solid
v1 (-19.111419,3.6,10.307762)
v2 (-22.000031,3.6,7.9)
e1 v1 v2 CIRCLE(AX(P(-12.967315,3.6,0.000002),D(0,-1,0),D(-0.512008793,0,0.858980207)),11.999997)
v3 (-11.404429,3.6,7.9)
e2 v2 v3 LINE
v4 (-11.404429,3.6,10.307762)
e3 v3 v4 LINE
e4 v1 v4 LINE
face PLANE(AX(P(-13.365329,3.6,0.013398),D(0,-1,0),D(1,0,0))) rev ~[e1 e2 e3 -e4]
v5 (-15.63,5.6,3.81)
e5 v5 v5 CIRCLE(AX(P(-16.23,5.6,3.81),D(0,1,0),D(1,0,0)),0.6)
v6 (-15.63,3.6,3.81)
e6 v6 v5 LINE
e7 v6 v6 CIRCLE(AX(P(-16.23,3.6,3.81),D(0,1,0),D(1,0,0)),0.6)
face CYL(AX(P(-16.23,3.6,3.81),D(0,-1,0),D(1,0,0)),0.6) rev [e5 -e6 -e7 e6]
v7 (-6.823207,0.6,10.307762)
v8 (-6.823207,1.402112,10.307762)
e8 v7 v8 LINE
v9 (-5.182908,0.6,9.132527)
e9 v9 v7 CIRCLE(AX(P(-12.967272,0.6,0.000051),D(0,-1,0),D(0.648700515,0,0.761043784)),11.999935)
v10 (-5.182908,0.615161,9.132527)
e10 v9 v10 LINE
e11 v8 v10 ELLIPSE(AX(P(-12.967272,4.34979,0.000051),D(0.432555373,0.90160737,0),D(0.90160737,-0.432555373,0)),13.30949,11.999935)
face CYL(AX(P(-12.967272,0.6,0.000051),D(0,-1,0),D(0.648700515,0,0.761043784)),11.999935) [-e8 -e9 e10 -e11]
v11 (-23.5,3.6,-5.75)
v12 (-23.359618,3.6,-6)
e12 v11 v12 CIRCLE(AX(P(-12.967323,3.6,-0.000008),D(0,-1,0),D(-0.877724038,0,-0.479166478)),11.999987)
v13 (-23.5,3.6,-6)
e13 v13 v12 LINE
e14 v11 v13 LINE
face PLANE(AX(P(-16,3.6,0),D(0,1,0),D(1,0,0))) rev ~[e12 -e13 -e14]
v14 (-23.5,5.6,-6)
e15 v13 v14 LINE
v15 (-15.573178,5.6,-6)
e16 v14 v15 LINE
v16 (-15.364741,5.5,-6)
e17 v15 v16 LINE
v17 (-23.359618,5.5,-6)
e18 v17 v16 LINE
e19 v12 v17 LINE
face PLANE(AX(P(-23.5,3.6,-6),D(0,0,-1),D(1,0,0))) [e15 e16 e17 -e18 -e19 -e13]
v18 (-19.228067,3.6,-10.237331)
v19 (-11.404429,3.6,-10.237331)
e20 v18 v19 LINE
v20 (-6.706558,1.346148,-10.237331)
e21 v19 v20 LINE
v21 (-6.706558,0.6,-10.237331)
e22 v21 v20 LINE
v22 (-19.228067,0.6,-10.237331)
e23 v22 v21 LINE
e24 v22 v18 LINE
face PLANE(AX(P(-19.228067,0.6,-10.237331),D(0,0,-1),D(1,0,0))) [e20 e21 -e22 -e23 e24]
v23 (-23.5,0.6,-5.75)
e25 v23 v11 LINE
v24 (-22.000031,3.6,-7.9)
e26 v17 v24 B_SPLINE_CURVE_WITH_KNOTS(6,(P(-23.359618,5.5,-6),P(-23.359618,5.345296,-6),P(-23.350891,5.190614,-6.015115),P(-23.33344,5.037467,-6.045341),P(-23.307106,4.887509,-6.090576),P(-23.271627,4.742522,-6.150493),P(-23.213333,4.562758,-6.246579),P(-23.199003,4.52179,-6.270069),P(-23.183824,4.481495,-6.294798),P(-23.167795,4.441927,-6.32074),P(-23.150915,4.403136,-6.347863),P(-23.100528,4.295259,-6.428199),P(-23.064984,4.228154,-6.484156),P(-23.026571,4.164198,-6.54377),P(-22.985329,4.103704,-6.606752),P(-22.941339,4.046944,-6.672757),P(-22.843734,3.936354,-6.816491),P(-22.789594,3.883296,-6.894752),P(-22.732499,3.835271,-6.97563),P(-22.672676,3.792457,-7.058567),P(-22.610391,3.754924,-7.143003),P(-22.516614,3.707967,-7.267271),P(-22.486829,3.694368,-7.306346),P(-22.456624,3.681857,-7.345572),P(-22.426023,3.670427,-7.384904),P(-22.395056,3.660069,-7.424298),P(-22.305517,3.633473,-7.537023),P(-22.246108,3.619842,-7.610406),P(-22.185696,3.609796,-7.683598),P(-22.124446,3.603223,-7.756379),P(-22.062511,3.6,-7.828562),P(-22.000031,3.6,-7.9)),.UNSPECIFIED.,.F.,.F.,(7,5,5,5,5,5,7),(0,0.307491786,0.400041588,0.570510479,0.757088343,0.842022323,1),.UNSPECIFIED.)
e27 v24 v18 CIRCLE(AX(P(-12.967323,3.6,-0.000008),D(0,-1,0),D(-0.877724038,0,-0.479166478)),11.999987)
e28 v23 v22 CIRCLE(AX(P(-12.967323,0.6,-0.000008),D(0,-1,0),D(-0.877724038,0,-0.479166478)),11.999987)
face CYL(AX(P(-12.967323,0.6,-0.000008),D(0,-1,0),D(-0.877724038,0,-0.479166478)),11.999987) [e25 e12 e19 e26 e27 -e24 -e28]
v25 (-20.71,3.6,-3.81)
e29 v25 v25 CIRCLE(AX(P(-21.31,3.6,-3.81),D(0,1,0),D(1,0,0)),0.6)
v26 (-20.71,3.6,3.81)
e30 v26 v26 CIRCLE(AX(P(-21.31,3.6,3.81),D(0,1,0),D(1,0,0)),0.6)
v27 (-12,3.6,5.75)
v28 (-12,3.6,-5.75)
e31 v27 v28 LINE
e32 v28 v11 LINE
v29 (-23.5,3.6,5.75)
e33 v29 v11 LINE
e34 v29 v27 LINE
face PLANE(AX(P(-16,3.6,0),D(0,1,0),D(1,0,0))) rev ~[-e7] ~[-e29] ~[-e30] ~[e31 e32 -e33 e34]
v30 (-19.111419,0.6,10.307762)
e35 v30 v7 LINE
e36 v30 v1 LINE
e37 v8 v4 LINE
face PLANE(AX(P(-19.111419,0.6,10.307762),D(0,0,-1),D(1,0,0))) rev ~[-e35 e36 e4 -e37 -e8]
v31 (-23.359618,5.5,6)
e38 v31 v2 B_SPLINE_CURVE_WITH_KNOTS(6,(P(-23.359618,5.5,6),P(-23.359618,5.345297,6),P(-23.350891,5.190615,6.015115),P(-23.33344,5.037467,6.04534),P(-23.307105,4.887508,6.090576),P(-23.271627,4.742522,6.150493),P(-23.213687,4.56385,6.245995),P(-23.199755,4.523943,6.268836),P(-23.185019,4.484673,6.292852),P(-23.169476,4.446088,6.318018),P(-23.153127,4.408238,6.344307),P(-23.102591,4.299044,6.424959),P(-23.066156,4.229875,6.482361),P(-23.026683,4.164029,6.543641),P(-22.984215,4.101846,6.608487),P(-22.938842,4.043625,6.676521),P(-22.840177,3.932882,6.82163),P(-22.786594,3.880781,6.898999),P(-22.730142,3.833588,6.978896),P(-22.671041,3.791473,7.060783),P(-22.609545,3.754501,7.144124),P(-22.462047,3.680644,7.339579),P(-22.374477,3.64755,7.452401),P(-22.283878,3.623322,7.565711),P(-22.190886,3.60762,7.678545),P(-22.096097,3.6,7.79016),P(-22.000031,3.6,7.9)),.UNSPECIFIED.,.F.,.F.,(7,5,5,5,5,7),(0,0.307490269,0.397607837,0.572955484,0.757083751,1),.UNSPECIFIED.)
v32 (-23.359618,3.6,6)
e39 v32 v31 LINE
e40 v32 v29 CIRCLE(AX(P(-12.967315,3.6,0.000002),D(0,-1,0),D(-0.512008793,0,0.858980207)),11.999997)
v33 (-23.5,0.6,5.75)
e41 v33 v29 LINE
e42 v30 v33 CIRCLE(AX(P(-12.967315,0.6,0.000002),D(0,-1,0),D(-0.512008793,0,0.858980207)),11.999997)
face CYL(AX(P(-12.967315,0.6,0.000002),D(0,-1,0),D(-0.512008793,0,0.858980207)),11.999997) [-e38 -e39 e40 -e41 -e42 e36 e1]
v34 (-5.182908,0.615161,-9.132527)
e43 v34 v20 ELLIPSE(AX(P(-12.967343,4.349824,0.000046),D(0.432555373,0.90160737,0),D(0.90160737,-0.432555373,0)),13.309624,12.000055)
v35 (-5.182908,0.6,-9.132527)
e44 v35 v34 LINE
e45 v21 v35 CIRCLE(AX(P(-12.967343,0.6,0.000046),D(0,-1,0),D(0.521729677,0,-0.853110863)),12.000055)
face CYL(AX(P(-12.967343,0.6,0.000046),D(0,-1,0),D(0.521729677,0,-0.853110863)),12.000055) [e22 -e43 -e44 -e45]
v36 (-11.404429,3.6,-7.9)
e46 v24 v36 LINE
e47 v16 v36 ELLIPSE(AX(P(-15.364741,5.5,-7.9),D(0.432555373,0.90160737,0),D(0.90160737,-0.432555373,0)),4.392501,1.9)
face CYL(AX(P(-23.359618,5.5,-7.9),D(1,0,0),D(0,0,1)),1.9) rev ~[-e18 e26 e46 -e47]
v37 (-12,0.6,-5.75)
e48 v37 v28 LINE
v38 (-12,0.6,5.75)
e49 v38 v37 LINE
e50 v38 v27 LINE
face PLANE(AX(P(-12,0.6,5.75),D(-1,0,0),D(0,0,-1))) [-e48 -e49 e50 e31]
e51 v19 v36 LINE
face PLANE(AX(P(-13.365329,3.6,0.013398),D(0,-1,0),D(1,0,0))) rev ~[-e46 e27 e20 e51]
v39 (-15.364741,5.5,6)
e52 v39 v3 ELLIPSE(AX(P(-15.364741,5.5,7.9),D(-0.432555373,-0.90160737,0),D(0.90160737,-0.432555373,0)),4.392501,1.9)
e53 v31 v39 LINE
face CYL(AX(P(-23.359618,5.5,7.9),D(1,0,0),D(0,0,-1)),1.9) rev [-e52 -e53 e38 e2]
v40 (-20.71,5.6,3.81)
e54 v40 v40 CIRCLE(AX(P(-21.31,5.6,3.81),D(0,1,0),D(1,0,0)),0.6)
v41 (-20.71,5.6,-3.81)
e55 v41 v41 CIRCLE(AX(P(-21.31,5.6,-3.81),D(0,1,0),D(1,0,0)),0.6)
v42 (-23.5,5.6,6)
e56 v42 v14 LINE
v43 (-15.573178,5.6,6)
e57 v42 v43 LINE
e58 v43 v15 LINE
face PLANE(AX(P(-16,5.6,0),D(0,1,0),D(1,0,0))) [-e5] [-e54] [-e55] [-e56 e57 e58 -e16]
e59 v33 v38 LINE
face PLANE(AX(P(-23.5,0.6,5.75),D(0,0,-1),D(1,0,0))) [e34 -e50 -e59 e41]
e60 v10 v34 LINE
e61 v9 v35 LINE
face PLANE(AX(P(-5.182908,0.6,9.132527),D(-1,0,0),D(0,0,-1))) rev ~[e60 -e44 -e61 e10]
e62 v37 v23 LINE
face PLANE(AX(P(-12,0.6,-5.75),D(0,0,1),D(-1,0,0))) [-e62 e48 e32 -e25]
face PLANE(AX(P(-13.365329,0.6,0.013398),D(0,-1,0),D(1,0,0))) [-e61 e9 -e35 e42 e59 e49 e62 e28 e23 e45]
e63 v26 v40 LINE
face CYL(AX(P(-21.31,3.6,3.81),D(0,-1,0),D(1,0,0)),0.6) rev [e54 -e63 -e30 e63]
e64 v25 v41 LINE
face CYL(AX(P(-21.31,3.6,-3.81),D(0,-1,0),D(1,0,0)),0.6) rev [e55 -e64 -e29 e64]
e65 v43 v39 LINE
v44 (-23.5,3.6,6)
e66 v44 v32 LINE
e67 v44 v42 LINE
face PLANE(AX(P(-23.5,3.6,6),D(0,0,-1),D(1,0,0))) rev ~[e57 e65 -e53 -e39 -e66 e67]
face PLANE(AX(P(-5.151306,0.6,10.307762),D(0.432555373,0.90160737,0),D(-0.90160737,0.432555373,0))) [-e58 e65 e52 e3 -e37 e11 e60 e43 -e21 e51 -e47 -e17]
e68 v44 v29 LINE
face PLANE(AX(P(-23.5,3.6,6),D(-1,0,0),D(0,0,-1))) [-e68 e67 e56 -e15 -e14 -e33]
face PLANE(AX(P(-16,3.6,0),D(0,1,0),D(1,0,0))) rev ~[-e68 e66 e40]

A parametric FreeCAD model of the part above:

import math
import FreeCAD as App
import Part
import Sketcher


def edges_at(feature, points):
    """Names of the edges that pass closest to the given points."""
    edges = feature.Shape.Edges
    near = lambda p: min(range(len(edges)), key=lambda i: edges[i].distToShape(Part.Vertex(*p))[0])
    return sorted({f"Edge{near(p) + 1}" for p in points})


def add_polygon(sketch, points):
    """Adds a closed chain of lines whose ends are joined by coincident constraints."""
    first, n = sketch.GeometryCount, len(points)
    for a, b in zip(points, points[1:] + points[:1]):
        sketch.addGeometry(Part.LineSegment(App.Vector(*a, 0), App.Vector(*b, 0)), False)
    for i in range(n):
        sketch.addConstraint(Sketcher.Constraint("Coincident", first + i, 2, first + (i + 1) % n, 1))

doc = App.newDocument("Part")
params = doc.addObject("Spreadsheet::Sheet", "Params")
for row, (alias, value) in enumerate([
    ("sketch1_width", "11.5 mm"),
    ("pad1_length", "3 mm"),
    ("sketch2_diameter", "1.2 mm"),
    ("sketch2_width", "15 mm"),
    ("sketch2_height", "12 mm"),
    ("pad2_length", "2 mm"),
    ("fillet_radius", "1.9 mm"),
], start=1):
    params.set(f"A{row}", alias)
    params.set(f"B{row}", "=" + value)
    params.setAlias(f"B{row}", alias)

body = doc.addObject("PartDesign::Body", "Body")

sketch1 = doc.addObject("Sketcher::SketchObject", "Sketch")
body.addObject(sketch1)
sketch1.AttachmentSupport = (doc.XZ_Plane, [""])
sketch1.MapMode = "FlatFace"
sketch1.addGeometry([
    Part.LineSegment(App.Vector(-23.5, 5.75, 0), App.Vector(-12, 5.75, 0)),
    Part.LineSegment(App.Vector(-12, 5.75, 0), App.Vector(-12, -5.75, 0)),
    Part.LineSegment(App.Vector(-12, -5.75, 0), App.Vector(-23.5, -5.75, 0)),
    Part.ArcOfCircle(Part.Circle(App.Vector(-12.967323, -0.000008, 0), App.Vector(0, 0, 1), 11.999987), math.radians(-151.369022), math.radians(-121.448317)),
    Part.LineSegment(App.Vector(-19.228067, -10.237331, 0), App.Vector(-6.706558, -10.237331, 0)),
    Part.ArcOfCircle(Part.Circle(App.Vector(-12.967343, 0.000046, 0), App.Vector(0, 0, 1), 12.000055), math.radians(-58.551654), math.radians(-49.556347)),
    Part.LineSegment(App.Vector(-5.182908, -9.132527, 0), App.Vector(-5.182908, 9.132527, 0)),
    Part.ArcOfCircle(Part.Circle(App.Vector(-12.967272, 0.000051, 0), App.Vector(0, 0, 1), 11.999935), math.radians(49.556302), math.radians(59.202313)),
    Part.LineSegment(App.Vector(-6.823207, 10.307762, 0), App.Vector(-19.111419, 10.307762, 0)),
    Part.ArcOfCircle(Part.Circle(App.Vector(-12.967315, 0.000002, 0), App.Vector(0, 0, 1), 11.999997), math.radians(120.797727), math.radians(151.369013)),
], False)
sketch1.addConstraint([
    Sketcher.Constraint("Coincident", 0, 2, 1, 1),
    Sketcher.Constraint("Coincident", 1, 2, 2, 1),
    Sketcher.Constraint("Coincident", 2, 2, 3, 1),
    Sketcher.Constraint("Coincident", 3, 2, 4, 1),
    Sketcher.Constraint("Coincident", 4, 2, 5, 1),
    Sketcher.Constraint("Coincident", 5, 2, 6, 1),
    Sketcher.Constraint("Coincident", 6, 2, 7, 1),
    Sketcher.Constraint("Coincident", 7, 2, 8, 1),
    Sketcher.Constraint("Coincident", 8, 2, 9, 1),
    Sketcher.Constraint("Coincident", 9, 2, 0, 1),
    Sketcher.Constraint("Horizontal", 0),
    Sketcher.Constraint("Vertical", 1),
    Sketcher.Constraint("Horizontal", 2),
    Sketcher.Constraint("Horizontal", 4),
    Sketcher.Constraint("Vertical", 6),
    Sketcher.Constraint("Horizontal", 8),
    Sketcher.Constraint("Symmetric", 2, 2, 9, 2, -1),
    Sketcher.Constraint("PointOnObject", 9, 3, -1),
    Sketcher.Constraint("Equal", 2, 1),
    Sketcher.Constraint("DistanceX", 0, 1, 0, 2, 11.5),
    Sketcher.Constraint("DistanceX", 0, 2, -1, 1, 12.0),
    Sketcher.Constraint("Radius", 3, 11.999987),
    Sketcher.Constraint("Radius", 5, 12.000055),
    Sketcher.Constraint("Radius", 7, 11.999935),
    Sketcher.Constraint("Radius", 9, 11.999997),
    Sketcher.Constraint("DistanceX", 4, 1, 4, 2, 12.521509),
    Sketcher.Constraint("DistanceX", 7, 2, 6, 2, 1.640299),
    Sketcher.Constraint("DistanceX", 8, 2, 8, 1, 12.288212),
    Sketcher.Constraint("DistanceY", 6, 1, 6, 2, 18.265054),
    Sketcher.Constraint("DistanceX", 7, 3, -1, 1, 12.967272),
    Sketcher.Constraint("DistanceY", 3, 2, -1, 1, 10.237331),
    Sketcher.Constraint("DistanceX", 4, 2, -1, 1, 6.706558),
    Sketcher.Constraint("DistanceX", 6, 2, -1, 1, 5.182908),
])
sketch1.setExpression("Constraints[19]", "Params.sketch1_width")
pad1 = doc.addObject("PartDesign::Pad", "Pad")
body.addObject(pad1)
pad1.Profile = sketch1
pad1.setExpression("Length", "Params.pad1_length")
pad1.Reversed = True

sketch2 = doc.addObject("Sketcher::SketchObject", "Sketch001")
body.addObject(sketch2)
sketch2.AttachmentSupport = (doc.XZ_Plane, [""])
sketch2.MapMode = "FlatFace"
sketch2.AttachmentOffset = App.Placement(App.Vector(0, 0, -3), App.Rotation())
add_polygon(sketch2, [(-23.5, -6), (-23.5, 6), (-8.5, 6), (-8.5, -6)])
sketch2.addGeometry(Part.Circle(App.Vector(-21.31, 3.81, 0), App.Vector(0, 0, 1), 0.6), False)
sketch2.addGeometry(Part.Circle(App.Vector(-16.23, 3.81, 0), App.Vector(0, 0, 1), 0.6), False)
sketch2.addGeometry(Part.Circle(App.Vector(-21.31, -3.81, 0), App.Vector(0, 0, 1), 0.6), False)
sketch2.addConstraint([
    Sketcher.Constraint("Vertical", 0),
    Sketcher.Constraint("Horizontal", 1),
    Sketcher.Constraint("Vertical", 2),
    Sketcher.Constraint("Horizontal", 3),
    Sketcher.Constraint("Equal", 4, 5),
    Sketcher.Constraint("Equal", 5, 6),
    Sketcher.Constraint("Symmetric", 4, 3, 6, 3, -1),
    Sketcher.Constraint("Horizontal", 4, 3, 5, 3),
    Sketcher.Constraint("Diameter", 4, 1.2),
    Sketcher.Constraint("DistanceX", 1, 1, 1, 2, 15.0),
    Sketcher.Constraint("DistanceY", 0, 1, 0, 2, 12.0),
    Sketcher.Constraint("DistanceY", -1, 1, 0, 2, 6.0),
    Sketcher.Constraint("DistanceX", 0, 2, -1, 1, 23.5),
    Sketcher.Constraint("DistanceX", 4, 3, -1, 1, 21.31),
    Sketcher.Constraint("DistanceY", -1, 1, 4, 3, 3.81),
    Sketcher.Constraint("DistanceX", 5, 3, -1, 1, 16.23),
])
sketch2.setExpression("Constraints[12]", "Params.sketch2_diameter")
sketch2.setExpression("Constraints[13]", "Params.sketch2_width")
sketch2.setExpression("Constraints[14]", "Params.sketch2_height")
pad2 = doc.addObject("PartDesign::Pad", "Pad001")
body.addObject(pad2)
pad2.Profile = sketch2
pad2.setExpression("Length", "Params.pad2_length")
pad2.Reversed = True

sketch3 = doc.addObject("Sketcher::SketchObject", "Sketch002")
body.addObject(sketch3)
sketch3.AttachmentSupport = (doc.XY_Plane, [""])
sketch3.MapMode = "FlatFace"
sketch3.AttachmentOffset = App.Placement(App.Vector(0, 0, 10.307762), App.Rotation())
add_polygon(sketch3, [(-15.6, 5.012868), (-5.151306, 0), (-5.151306, 5.012868)])
sketch3.addConstraint([
    Sketcher.Constraint("Vertical", 1),
    Sketcher.Constraint("Horizontal", 2),
    Sketcher.Constraint("PointOnObject", 0, 2, -1),
    Sketcher.Constraint("DistanceX", 2, 2, -1, 1, 15.6),
    Sketcher.Constraint("DistanceX", 2, 2, 2, 1, 10.448694),
    Sketcher.Constraint("DistanceY", 1, 1, 1, 2, 5.012868),
])
pocket1 = doc.addObject("PartDesign::Pocket", "Pocket")
body.addObject(pocket1)
pocket1.Profile = sketch3
pocket1.Type = "ThroughAll"
doc.recompute()

fillet = doc.addObject("PartDesign::Fillet", "Fillet")
body.addObject(fillet)
fillet.Base = (pocket1, edges_at(pocket1, [(-17.382, 3, 6), (-17.382, 3, -6)]))
fillet.setExpression("Radius", "Params.fillet_radius")
body2 = doc.addObject("PartDesign::Body", "Body001")
doc.recompute()

body.Placement = App.Placement(App.Vector(0, 0.6, 0), App.Rotation(App.Vector(0, 0, 1), 0))
boolean = doc.addObject("PartDesign::Boolean", "Boolean")
body2.addObject(boolean)
boolean.Type = "Fuse"
boolean.addObjects([body])

doc.recompute()
